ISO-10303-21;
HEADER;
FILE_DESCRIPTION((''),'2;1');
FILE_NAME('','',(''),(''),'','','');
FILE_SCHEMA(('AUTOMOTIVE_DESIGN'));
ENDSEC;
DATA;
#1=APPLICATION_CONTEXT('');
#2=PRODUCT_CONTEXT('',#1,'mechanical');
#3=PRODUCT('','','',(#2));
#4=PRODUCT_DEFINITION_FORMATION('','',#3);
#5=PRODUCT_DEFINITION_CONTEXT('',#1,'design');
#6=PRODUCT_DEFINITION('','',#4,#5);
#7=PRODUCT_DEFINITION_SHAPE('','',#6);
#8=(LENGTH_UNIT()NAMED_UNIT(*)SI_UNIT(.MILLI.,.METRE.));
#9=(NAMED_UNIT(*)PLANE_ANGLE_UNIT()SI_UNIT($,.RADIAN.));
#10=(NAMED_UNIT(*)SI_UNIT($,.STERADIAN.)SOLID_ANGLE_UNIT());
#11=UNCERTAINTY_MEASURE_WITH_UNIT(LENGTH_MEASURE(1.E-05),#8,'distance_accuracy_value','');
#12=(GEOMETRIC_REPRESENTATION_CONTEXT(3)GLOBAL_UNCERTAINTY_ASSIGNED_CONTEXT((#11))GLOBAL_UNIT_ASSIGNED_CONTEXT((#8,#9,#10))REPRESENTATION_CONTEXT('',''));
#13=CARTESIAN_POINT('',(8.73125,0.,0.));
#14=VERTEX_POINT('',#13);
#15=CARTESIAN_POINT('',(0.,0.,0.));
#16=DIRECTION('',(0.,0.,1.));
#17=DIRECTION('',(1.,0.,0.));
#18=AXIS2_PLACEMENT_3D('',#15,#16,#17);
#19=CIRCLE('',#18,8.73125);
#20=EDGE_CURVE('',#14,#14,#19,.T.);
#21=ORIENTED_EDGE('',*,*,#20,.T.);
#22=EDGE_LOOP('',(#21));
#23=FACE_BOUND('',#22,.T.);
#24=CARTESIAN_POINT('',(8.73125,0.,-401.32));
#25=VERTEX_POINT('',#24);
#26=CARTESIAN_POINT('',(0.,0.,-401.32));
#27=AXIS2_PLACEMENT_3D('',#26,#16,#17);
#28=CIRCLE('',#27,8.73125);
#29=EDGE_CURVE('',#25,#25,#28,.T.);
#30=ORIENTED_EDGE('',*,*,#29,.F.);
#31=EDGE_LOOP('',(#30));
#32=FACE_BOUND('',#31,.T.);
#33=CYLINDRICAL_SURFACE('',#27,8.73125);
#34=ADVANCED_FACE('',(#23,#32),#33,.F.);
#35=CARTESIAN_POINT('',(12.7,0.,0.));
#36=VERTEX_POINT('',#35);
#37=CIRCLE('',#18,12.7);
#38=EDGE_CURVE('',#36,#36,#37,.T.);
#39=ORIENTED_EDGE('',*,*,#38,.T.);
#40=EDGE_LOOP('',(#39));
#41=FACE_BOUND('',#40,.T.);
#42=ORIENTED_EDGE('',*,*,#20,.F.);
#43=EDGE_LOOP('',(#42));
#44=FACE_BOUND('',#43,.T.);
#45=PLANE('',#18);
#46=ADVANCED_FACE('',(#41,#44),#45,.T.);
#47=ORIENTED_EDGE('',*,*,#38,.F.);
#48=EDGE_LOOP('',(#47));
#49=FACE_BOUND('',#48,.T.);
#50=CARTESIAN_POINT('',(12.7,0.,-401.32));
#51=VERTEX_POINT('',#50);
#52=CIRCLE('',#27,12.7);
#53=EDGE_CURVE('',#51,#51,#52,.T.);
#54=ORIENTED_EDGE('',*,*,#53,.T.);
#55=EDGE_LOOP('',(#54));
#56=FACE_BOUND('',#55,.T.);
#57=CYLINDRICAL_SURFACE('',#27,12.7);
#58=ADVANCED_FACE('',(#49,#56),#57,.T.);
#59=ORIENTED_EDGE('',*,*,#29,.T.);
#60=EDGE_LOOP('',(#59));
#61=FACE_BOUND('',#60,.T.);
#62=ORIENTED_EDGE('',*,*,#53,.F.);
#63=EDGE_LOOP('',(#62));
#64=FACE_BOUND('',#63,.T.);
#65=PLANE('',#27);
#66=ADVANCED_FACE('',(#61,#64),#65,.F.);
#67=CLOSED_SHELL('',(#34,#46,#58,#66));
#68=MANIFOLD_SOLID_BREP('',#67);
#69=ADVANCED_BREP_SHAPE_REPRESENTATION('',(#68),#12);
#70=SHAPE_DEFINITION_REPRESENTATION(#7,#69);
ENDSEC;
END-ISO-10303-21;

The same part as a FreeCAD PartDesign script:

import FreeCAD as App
import Part
import Sketcher
from FreeCAD import Vector
Q = App.Units.Quantity

doc = App.newDocument("Part")
body = doc.addObject("PartDesign::Body", "Body")

# Sketch on XY plane
sketch1 = body.newObject("Sketcher::SketchObject", "Sketch")
sketch1.AttachmentSupport = (doc.getObject("XY_Plane"), [""])
sketch1.MapMode = "FlatFace"
sketch1.addGeometry([
    Part.Circle(Vector(0, 0, 0), Vector(0, 0, 1), 13),
    Part.Circle(Vector(0, 0, 0), Vector(0, 0, 1), 9),
], False)
sketch1.addConstraint([
    Sketcher.Constraint("Coincident", 0, 3, -1, 1),
    Sketcher.Constraint("Coincident", 1, 3, -1, 1),
    Sketcher.Constraint("Diameter", 0, Q("1 in")),
    Sketcher.Constraint("Diameter", 1, Q("0.6875 in")),
])
pad1 = body.newObject("PartDesign::Pad", "Pad")
pad1.Profile = sketch1
pad1.Length = Q("15.8 in")
pad1.Reversed = True

doc.recompute()
